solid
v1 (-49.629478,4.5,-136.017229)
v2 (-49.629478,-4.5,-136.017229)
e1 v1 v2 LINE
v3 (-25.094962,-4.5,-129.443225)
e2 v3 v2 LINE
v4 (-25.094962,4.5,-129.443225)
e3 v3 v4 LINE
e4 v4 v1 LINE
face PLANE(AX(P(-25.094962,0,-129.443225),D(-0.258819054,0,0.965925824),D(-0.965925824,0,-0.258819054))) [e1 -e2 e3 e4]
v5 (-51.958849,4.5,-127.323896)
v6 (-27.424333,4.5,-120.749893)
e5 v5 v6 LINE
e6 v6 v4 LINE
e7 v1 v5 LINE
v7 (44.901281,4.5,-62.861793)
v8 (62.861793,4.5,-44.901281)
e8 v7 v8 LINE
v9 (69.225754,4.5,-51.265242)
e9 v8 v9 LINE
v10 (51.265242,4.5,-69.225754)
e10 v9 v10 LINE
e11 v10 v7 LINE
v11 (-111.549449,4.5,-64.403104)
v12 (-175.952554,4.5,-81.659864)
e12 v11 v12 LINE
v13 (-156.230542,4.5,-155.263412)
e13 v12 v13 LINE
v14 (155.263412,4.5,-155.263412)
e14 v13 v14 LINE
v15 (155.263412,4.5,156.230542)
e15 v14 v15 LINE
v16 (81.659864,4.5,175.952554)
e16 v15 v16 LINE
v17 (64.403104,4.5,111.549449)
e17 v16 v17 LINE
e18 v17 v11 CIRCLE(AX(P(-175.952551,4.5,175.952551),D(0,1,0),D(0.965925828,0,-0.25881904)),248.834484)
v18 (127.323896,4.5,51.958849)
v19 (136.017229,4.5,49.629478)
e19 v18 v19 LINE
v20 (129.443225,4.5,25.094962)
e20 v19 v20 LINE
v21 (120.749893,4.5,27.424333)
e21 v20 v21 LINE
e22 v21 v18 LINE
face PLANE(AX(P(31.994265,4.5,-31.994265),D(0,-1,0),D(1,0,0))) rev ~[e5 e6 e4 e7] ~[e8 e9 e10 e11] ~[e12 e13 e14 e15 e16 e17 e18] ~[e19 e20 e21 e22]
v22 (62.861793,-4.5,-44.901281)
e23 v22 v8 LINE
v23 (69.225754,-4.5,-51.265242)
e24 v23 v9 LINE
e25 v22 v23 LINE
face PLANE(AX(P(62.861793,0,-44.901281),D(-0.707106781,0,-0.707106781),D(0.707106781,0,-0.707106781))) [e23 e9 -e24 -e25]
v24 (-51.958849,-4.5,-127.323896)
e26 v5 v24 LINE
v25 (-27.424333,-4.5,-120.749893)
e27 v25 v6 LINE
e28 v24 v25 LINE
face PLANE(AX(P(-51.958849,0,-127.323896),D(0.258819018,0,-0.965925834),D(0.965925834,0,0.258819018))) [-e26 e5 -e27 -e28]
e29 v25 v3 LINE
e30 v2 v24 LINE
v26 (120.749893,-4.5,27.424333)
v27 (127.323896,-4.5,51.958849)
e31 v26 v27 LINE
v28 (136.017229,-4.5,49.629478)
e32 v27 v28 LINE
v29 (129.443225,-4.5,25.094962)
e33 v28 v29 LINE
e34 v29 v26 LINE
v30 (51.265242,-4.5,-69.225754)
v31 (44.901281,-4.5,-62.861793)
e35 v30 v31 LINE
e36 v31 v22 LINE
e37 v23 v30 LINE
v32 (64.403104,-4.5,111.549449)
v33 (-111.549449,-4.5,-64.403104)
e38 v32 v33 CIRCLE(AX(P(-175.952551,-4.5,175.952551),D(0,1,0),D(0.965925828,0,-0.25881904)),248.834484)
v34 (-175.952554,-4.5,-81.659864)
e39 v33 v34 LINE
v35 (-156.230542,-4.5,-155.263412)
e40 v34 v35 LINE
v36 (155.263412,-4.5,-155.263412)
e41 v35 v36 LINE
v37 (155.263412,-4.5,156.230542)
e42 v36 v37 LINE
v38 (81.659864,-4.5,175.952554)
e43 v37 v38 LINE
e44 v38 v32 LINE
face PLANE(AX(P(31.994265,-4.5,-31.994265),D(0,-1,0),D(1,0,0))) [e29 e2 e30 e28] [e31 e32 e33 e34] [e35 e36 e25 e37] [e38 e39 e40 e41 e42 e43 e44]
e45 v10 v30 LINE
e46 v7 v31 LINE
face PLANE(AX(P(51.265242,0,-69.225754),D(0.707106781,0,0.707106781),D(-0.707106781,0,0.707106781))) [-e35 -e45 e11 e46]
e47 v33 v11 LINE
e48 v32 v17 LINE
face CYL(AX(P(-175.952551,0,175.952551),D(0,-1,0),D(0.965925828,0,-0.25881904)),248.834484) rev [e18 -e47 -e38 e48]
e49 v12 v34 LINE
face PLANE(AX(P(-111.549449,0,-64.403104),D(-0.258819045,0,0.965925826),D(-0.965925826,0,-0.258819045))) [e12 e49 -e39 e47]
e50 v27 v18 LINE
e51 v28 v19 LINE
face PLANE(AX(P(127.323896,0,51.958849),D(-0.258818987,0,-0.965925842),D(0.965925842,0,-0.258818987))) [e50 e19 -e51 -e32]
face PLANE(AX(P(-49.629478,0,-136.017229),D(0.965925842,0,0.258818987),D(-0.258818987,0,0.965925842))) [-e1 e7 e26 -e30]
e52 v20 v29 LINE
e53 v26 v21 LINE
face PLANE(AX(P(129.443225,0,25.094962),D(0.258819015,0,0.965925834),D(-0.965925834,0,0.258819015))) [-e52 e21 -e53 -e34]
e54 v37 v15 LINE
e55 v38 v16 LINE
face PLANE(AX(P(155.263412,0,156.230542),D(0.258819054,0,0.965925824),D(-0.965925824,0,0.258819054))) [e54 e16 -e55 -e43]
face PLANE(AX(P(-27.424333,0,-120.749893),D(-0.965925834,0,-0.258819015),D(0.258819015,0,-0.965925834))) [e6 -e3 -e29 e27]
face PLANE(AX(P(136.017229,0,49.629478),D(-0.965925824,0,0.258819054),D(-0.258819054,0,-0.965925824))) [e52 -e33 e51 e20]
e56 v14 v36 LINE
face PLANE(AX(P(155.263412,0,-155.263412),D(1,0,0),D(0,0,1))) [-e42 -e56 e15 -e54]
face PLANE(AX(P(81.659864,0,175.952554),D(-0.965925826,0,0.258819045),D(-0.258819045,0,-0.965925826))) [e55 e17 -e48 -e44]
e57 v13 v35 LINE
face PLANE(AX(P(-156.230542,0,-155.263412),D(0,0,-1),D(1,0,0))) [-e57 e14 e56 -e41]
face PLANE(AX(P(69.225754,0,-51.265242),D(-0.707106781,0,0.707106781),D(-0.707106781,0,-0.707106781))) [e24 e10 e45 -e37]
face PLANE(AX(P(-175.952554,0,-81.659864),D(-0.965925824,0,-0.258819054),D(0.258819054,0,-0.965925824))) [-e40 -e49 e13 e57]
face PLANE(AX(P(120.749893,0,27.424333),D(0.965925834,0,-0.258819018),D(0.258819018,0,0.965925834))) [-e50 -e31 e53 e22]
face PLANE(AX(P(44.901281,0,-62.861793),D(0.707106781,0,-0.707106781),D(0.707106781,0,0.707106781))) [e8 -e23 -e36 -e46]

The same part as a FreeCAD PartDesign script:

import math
import FreeCAD as App
import Part
import Sketcher
from FreeCAD import Vector
Q = App.Units.Quantity


def add_polygon(sketch, points):
    """Adds a closed chain of lines whose ends are joined by coincident constraints."""
    first, n = sketch.GeometryCount, len(points)
    for a, b in zip(points, points[1:] + points[:1]):
        sketch.addGeometry(Part.LineSegment(App.Vector(*a, 0), App.Vector(*b, 0)), False)
    for i in range(n):
        sketch.addConstraint(Sketcher.Constraint("Coincident", first + i, 2, first + (i + 1) % n, 1))

doc = App.newDocument("Part")
body = doc.addObject("PartDesign::Body", "Body")

# Sketch on XZ plane
sketch1 = doc.addObject("Sketcher::SketchObject", "Sketch")
body.addObject(sketch1)
sketch1.AttachmentSupport = (doc.XZ_Plane, [""])
sketch1.MapMode = "FlatFace"
sketch1.addGeometry(Part.LineSegment(Vector(-111.549449, -64.403104, 0), Vector(-175.952554, -81.659864, 0)), False)  # 0
sketch1.addGeometry(Part.LineSegment(Vector(-175.952554, -81.659864, 0), Vector(-156.230542, -155.263412, 0)), False)  # 1
sketch1.addGeometry(Part.LineSegment(Vector(-156.230542, -155.263412, 0), Vector(155.263412, -155.263412, 0)), False)  # 2
sketch1.addGeometry(Part.LineSegment(Vector(155.263412, -155.263412, 0), Vector(155.263412, 156.230542, 0)), False)  # 3
sketch1.addGeometry(Part.LineSegment(Vector(155.263412, 156.230542, 0), Vector(81.659864, 175.952554, 0)), False)  # 4
sketch1.addGeometry(Part.LineSegment(Vector(81.659864, 175.952554, 0), Vector(64.403104, 111.549449, 0)), False)  # 5
sketch1.addGeometry(Part.ArcOfCircle(Part.Circle(Vector(-175.952551, 175.952551, 0), Vector(0, 0, 1), 248.834484), math.radians(-75), math.radians(-15)), False)  # 6
add_polygon(sketch1, [(-25.094962, -129.443225), (-49.629478, -136.017229), (-51.958849, -127.323896), (-27.424333, -120.749893)])  # lines 7-10
add_polygon(sketch1, [(69.225754, -51.265242), (51.265242, -69.225754), (44.901281, -62.861793), (62.861793, -44.901281)])  # lines 11-14
add_polygon(sketch1, [(136.017229, 49.629478), (129.443225, 25.094962), (120.749893, 27.424333), (127.323896, 51.958849)])  # lines 15-18
sketch1.addConstraint([
    Sketcher.Constraint("Coincident", 0, 2, 1, 1),
    Sketcher.Constraint("Coincident", 1, 2, 2, 1),
    Sketcher.Constraint("Coincident", 2, 2, 3, 1),
    Sketcher.Constraint("Coincident", 3, 2, 4, 1),
    Sketcher.Constraint("Coincident", 4, 2, 5, 1),
    Sketcher.Constraint("Tangent", 5, 2, 6, 2),
    Sketcher.Constraint("Tangent", 6, 1, 0, 1),
    Sketcher.Constraint("Horizontal", 2),
    Sketcher.Constraint("Vertical", 3),
    Sketcher.Constraint("Perpendicular", 0, 1),
    Sketcher.Constraint("Perpendicular", 4, 5),
    Sketcher.Constraint("Perpendicular", 1, 7),
    Sketcher.Constraint("Perpendicular", 7, 8),
    Sketcher.Constraint("Perpendicular", 8, 9),
    Sketcher.Constraint("Perpendicular", 9, 10),
    Sketcher.Constraint("Perpendicular", 11, 12),
    Sketcher.Constraint("Perpendicular", 12, 13),
    Sketcher.Constraint("Perpendicular", 13, 14),
    Sketcher.Constraint("Parallel", 5, 15),
    Sketcher.Constraint("Perpendicular", 15, 16),
    Sketcher.Constraint("Perpendicular", 16, 17),
    Sketcher.Constraint("Perpendicular", 17, 18),
    Sketcher.Constraint("Equal", 2, 3),
    Sketcher.Constraint("Equal", 1, 4),
    Sketcher.Constraint("Equal", 0, 5),
    Sketcher.Constraint("Equal", 9, 11),
    Sketcher.Constraint("Equal", 10, 12),
    Sketcher.Constraint("Equal", 13, 15),
    Sketcher.Constraint("Equal", 14, 16),
    Sketcher.Constraint("Angle", 0, Q("-165 deg")),
    Sketcher.Constraint("Angle", 11, Q("-135 deg")),
    Sketcher.Constraint("Distance", 8, 9.0),
    Sketcher.Constraint("Distance", 1, 76.2),
    Sketcher.Constraint("Distance", 7, 25.4),
    Sketcher.Constraint("Distance", 0, 66.675001),
    Sketcher.Constraint("Radius", 6, 248.834484),
    Sketcher.Constraint("DistanceY", 9, 2, 12, 2, 57.8881),
    Sketcher.Constraint("DistanceX", 13, 2, 16, 2, 57.8881),
    Sketcher.Constraint("DistanceY", 17, 2, 5, 2, 59.5906),
    Sketcher.Constraint("DistanceX", 6, 3, -1, 1, 175.952551),
    Sketcher.Constraint("DistanceY", -1, 1, 6, 3, 175.952551),
    Sketcher.Constraint("DistanceY", 7, 2, -1, 1, 136.017229),
    Sketcher.Constraint("DistanceX", 8, 2, -1, 1, 51.958849),
    Sketcher.Constraint("DistanceX", -1, 1, 12, 2, 44.901281),
])
pad1 = doc.addObject("PartDesign::Pad", "Pad")
body.addObject(pad1)
pad1.Profile = sketch1
pad1.Length = 9
pad1.Midplane = True

doc.recompute()
